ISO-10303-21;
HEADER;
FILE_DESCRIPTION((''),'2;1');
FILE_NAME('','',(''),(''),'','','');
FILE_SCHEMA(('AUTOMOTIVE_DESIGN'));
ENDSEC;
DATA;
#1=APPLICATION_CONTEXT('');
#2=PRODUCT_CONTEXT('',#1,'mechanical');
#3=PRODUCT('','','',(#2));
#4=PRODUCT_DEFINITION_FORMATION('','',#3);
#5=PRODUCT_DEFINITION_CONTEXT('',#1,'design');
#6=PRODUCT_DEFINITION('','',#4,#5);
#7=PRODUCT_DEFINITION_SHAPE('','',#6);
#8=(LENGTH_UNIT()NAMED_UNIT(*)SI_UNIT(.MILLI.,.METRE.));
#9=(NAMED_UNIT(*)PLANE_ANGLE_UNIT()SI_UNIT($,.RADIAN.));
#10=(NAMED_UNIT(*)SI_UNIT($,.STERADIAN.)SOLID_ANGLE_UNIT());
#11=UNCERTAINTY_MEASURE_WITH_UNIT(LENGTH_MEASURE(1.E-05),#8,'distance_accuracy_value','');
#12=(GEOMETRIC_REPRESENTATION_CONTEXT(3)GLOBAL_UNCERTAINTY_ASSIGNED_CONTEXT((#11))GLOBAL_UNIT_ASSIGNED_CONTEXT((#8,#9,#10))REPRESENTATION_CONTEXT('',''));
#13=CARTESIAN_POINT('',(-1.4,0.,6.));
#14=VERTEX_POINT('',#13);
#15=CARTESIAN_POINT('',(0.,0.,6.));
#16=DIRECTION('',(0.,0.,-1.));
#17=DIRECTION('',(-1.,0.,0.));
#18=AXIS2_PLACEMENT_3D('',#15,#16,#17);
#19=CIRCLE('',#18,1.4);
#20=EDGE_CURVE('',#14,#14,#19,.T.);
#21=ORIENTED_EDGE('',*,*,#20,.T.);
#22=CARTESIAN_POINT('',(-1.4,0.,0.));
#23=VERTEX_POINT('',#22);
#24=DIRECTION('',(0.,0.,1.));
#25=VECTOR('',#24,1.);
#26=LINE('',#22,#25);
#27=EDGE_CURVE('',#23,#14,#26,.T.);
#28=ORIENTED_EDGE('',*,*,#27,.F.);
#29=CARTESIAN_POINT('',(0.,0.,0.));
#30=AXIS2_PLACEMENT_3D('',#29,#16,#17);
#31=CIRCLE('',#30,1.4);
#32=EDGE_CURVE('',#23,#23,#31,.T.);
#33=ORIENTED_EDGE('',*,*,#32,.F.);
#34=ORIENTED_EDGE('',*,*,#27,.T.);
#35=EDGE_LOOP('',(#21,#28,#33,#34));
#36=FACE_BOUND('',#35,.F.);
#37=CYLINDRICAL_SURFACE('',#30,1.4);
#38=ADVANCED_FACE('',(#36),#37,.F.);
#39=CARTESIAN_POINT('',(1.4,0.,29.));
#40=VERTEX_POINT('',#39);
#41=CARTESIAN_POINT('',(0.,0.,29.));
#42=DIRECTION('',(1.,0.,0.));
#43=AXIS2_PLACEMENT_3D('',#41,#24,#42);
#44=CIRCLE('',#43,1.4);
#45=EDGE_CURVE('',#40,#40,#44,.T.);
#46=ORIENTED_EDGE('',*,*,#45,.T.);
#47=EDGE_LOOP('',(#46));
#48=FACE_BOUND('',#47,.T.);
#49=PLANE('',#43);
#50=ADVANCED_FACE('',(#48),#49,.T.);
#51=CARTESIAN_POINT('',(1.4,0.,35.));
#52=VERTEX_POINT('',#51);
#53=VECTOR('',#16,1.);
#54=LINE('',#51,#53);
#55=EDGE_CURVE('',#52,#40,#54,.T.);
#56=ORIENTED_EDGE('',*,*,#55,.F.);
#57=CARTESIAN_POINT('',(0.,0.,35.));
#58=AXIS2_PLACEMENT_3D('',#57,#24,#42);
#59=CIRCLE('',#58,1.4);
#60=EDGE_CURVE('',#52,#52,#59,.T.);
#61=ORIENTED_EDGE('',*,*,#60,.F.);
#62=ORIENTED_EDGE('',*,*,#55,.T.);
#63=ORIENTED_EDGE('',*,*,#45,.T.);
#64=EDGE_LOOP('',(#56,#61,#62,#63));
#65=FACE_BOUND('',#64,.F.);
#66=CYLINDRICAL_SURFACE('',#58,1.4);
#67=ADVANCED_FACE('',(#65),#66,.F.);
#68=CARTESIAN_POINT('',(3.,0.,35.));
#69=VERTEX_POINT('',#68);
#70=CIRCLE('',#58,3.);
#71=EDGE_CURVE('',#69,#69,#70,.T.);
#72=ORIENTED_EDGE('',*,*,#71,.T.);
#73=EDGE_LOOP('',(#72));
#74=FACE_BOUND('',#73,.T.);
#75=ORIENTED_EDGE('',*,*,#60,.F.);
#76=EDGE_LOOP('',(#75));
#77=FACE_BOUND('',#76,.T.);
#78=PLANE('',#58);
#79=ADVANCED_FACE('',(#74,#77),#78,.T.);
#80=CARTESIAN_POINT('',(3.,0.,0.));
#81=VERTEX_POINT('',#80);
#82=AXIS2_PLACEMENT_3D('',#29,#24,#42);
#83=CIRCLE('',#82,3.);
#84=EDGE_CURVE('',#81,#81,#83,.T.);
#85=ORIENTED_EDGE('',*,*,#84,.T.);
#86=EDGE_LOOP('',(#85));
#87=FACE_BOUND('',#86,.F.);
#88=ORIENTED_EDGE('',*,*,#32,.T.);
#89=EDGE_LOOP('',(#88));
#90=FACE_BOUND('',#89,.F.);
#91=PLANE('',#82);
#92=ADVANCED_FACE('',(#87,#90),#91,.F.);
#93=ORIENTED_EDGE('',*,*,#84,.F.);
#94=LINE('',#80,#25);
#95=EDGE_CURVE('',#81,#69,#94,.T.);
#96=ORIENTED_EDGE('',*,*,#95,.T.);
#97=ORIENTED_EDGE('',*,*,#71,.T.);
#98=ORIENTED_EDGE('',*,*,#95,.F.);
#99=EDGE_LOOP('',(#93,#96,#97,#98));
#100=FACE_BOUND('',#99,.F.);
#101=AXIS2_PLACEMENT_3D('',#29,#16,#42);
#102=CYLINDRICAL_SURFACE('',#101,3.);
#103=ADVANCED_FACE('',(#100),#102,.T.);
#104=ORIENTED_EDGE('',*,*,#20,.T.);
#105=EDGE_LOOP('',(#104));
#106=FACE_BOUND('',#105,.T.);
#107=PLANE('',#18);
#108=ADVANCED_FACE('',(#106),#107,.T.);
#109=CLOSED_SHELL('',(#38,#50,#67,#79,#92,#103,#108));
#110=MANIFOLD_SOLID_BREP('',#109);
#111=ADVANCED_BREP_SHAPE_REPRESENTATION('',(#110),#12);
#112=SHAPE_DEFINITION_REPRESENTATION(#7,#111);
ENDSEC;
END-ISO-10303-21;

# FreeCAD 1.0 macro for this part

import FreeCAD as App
import Part
import Sketcher
from FreeCAD import Vector
Q = App.Units.Quantity

doc = App.newDocument("Part")
body = doc.addObject("PartDesign::Body", "Body")

# Sketch on XY plane
sketch1 = body.newObject("Sketcher::SketchObject", "Sketch")
sketch1.AttachmentSupport = (doc.getObject("XY_Plane"), [""])
sketch1.MapMode = "FlatFace"
sketch1.addGeometry(Part.Circle(Vector(0, 0, 0), Vector(0, 0, 1), 3), False)
sketch1.addConstraint([
    Sketcher.Constraint("Coincident", 0, 3, -1, 1),
    Sketcher.Constraint("Diameter", 0, Q("6 mm")),
])
pad1 = body.newObject("PartDesign::Pad", "Pad")
pad1.Profile = sketch1
pad1.Length = 35

# Sketch on XY plane
sketch2 = body.newObject("Sketcher::SketchObject", "Sketch001")
sketch2.AttachmentSupport = (doc.getObject("XY_Plane"), [""])
sketch2.MapMode = "FlatFace"
sketch2.AttachmentOffset = App.Placement(Vector(0, 0, 35), App.Rotation())
sketch2.addGeometry(Part.Circle(Vector(0, 0, 0), Vector(0, 0, 1), 1.4), False)
sketch2.addConstraint([
    Sketcher.Constraint("Coincident", 0, 3, -1, 1),
    Sketcher.Constraint("Diameter", 0, Q("2.8 mm")),
])
pocket1 = body.newObject("PartDesign::Pocket", "Pocket")
pocket1.Profile = sketch2
pocket1.Length = 6

# Sketch on XY plane
sketch3 = body.newObject("Sketcher::SketchObject", "Sketch002")
sketch3.AttachmentSupport = (doc.getObject("XY_Plane"), [""])
sketch3.MapMode = "FlatFace"
sketch3.addGeometry(Part.Circle(Vector(0, 0, 0), Vector(0, 0, 1), 1.4), False)
sketch3.addConstraint([
    Sketcher.Constraint("Coincident", 0, 3, -1, 1),
    Sketcher.Constraint("Diameter", 0, Q("2.8 mm")),
])
pocket2 = body.newObject("PartDesign::Pocket", "Pocket001")
pocket2.Profile = sketch3
pocket2.Length = 6
pocket2.Reversed = True

doc.recompute()
